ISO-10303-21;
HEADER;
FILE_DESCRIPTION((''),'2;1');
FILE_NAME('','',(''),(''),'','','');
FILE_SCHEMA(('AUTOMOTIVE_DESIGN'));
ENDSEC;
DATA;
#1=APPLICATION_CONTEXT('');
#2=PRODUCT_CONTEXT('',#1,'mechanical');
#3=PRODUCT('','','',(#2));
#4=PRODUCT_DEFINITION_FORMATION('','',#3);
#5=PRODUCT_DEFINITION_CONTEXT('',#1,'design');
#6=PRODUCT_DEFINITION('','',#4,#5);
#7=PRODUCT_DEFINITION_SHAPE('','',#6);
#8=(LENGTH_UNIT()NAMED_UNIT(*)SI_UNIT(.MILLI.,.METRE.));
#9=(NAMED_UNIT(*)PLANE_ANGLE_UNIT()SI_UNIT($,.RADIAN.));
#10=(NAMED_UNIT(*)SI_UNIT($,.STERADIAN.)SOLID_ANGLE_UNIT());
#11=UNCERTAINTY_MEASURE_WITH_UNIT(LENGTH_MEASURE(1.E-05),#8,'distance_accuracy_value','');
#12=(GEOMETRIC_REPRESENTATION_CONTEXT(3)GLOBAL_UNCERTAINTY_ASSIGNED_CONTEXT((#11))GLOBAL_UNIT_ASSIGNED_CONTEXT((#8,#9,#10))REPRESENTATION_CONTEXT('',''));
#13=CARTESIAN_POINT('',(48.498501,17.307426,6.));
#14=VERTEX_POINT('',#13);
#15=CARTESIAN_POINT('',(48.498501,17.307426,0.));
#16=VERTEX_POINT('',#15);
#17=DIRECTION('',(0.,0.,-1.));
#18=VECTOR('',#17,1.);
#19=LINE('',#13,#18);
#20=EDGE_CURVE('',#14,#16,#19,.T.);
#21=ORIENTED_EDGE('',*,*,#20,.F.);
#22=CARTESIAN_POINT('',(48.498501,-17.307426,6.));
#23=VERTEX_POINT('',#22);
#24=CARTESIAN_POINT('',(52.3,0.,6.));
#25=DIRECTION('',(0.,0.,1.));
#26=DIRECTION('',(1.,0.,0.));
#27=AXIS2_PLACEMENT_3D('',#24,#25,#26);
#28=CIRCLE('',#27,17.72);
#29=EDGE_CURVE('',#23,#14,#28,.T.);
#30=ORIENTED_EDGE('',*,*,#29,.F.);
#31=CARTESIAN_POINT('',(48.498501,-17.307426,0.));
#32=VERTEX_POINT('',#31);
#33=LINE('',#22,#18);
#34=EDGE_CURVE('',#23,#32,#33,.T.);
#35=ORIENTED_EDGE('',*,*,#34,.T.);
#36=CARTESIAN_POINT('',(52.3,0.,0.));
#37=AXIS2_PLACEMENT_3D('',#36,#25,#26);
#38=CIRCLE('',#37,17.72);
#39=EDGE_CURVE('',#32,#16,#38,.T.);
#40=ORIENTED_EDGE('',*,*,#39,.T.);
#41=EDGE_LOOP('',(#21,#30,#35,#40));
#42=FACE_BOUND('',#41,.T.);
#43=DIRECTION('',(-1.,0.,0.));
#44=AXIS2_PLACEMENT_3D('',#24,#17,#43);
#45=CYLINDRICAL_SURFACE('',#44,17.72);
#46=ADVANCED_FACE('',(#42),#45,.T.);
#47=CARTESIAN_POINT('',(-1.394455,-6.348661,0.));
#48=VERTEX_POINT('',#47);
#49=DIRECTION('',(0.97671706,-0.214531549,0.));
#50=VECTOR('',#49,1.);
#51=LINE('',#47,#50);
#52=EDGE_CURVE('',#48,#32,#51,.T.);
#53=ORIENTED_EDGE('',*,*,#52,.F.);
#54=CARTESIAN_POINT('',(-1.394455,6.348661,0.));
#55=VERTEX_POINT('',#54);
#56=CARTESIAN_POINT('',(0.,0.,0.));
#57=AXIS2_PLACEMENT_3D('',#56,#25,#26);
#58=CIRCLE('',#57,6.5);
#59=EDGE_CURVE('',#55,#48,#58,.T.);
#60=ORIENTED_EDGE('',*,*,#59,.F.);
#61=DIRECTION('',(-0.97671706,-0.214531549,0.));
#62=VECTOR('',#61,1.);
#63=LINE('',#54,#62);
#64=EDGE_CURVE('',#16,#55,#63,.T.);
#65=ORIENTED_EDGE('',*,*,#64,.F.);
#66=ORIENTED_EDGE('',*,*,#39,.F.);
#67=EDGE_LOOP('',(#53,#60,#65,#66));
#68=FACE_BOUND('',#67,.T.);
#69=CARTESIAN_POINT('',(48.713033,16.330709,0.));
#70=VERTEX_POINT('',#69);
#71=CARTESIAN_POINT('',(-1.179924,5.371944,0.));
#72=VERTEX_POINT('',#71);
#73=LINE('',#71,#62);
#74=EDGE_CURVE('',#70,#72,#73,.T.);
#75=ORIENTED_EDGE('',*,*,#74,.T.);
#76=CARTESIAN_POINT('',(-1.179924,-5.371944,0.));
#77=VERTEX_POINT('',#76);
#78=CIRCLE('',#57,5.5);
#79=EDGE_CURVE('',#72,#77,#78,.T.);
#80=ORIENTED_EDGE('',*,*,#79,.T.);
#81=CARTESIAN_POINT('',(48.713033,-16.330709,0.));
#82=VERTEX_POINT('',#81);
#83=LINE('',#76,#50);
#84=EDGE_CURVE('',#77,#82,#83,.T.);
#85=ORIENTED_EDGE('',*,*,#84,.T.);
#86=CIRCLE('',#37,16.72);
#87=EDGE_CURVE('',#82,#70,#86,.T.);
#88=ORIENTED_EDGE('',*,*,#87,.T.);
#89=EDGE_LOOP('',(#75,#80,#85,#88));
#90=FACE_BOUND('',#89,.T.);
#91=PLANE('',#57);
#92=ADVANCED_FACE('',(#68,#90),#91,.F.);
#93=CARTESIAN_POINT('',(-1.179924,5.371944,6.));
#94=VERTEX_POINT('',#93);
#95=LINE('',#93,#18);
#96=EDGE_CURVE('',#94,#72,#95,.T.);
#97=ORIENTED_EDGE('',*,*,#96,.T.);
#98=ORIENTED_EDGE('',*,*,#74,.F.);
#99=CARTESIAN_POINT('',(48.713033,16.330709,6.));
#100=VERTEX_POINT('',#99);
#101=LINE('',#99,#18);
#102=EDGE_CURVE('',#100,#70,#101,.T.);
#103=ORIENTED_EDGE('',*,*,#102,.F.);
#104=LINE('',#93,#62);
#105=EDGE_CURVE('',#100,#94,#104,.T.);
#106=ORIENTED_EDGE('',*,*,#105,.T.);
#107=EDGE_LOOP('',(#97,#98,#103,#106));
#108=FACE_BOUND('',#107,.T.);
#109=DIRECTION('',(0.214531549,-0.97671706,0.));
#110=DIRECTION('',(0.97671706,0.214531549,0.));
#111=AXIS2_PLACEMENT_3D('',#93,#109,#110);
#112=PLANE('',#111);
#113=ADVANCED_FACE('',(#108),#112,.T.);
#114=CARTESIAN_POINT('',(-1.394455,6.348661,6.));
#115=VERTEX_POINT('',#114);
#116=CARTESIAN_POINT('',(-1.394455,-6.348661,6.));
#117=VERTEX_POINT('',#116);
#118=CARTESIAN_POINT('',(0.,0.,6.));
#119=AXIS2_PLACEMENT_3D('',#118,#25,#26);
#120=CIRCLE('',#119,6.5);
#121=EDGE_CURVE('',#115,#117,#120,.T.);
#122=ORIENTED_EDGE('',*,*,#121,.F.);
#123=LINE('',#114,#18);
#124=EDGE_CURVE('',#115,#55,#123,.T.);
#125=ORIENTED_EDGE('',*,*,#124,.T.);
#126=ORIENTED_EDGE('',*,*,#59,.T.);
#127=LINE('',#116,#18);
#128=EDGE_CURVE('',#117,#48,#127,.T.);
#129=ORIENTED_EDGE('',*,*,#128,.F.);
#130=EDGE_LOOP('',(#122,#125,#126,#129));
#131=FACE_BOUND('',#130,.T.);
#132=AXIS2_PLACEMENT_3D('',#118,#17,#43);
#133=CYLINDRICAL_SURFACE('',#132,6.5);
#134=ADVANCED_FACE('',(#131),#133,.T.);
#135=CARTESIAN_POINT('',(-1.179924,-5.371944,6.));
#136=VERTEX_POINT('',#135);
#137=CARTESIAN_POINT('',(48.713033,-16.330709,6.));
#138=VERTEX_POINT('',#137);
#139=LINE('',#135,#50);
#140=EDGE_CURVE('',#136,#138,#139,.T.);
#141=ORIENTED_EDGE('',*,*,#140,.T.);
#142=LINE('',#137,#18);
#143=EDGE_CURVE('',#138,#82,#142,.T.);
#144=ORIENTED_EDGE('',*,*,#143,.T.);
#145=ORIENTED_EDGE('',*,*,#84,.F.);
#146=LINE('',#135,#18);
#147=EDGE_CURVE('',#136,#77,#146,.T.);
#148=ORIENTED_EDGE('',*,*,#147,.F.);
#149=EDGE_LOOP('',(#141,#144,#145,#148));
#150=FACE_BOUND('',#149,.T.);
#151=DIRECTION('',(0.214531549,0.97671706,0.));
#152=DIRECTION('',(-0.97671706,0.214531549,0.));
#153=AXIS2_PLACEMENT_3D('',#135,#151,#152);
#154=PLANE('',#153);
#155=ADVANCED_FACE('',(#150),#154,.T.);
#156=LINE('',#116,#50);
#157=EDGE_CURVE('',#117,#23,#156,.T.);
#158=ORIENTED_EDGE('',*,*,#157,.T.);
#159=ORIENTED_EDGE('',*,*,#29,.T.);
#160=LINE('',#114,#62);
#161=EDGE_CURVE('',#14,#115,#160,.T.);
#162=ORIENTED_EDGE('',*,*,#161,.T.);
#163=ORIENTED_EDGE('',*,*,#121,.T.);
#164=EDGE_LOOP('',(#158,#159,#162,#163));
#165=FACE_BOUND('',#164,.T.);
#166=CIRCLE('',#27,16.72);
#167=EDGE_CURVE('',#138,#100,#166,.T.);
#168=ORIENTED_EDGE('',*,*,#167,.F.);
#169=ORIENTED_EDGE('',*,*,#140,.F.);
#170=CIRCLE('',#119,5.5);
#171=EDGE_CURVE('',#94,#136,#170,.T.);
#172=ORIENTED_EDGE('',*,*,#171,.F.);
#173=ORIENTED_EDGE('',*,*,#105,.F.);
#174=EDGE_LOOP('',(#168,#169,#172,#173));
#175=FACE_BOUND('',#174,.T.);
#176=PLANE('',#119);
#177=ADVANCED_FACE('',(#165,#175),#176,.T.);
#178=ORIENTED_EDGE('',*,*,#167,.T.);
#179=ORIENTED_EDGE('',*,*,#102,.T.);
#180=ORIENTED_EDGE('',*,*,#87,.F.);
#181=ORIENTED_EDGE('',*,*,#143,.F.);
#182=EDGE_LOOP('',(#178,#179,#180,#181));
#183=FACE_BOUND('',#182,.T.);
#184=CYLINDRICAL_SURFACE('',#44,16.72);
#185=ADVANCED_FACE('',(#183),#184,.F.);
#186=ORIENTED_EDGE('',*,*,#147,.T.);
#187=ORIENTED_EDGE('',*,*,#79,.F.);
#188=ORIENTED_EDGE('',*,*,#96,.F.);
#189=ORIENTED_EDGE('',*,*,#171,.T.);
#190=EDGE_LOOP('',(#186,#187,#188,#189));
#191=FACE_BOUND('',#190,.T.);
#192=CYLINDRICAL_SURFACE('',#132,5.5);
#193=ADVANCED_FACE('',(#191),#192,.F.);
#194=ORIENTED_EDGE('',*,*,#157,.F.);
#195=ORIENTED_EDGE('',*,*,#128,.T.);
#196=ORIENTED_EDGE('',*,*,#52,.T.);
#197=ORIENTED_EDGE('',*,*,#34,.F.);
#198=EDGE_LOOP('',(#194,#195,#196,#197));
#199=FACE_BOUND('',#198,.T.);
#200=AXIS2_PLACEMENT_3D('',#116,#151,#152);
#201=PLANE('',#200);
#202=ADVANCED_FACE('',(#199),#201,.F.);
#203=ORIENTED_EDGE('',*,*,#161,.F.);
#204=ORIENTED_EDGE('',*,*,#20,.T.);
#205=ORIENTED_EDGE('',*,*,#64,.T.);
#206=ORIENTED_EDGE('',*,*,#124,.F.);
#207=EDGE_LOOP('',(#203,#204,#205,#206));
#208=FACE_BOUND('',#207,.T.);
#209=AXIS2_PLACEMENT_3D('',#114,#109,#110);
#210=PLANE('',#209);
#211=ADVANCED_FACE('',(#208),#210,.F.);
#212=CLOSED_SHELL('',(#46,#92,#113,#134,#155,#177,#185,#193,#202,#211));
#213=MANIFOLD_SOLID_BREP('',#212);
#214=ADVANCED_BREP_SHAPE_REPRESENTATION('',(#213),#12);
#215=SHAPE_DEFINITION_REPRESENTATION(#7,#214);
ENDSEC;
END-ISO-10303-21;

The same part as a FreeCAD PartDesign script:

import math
import FreeCAD as App
import Part
import Sketcher
from FreeCAD import Vector
Q = App.Units.Quantity

doc = App.newDocument("Part")
body = doc.addObject("PartDesign::Body", "Body")

# Sketch on XY plane
sketch1 = doc.addObject("Sketcher::SketchObject", "Sketch")
body.addObject(sketch1)
sketch1.AttachmentSupport = (doc.XY_Plane, [""])
sketch1.MapMode = "FlatFace"
sketch1.addGeometry(Part.LineSegment(Vector(48, 17, 0), Vector(-1, 6, 0)), False)
sketch1.addGeometry(Part.ArcOfCircle(Part.Circle(Vector(0, 0, 0), Vector(0, 0, 1), 6), math.radians(102), math.radians(258)), False)
sketch1.addGeometry(Part.LineSegment(Vector(-1, -6, 0), Vector(48, -17, 0)), False)
sketch1.addGeometry(Part.ArcOfCircle(Part.Circle(Vector(52, 0, 0), Vector(0, 0, 1), 18), math.radians(-102), math.radians(102)), False)
sketch1.addGeometry(Part.LineSegment(Vector(-1, 5, 0), Vector(49, 16, 0)), False)
sketch1.addGeometry(Part.ArcOfCircle(Part.Circle(Vector(52, 0, 0), Vector(0, 0, 1), 17), math.radians(-102), math.radians(102)), False)
sketch1.addGeometry(Part.LineSegment(Vector(49, -16, 0), Vector(-1, -5, 0)), False)
sketch1.addGeometry(Part.ArcOfCircle(Part.Circle(Vector(0, 0, 0), Vector(0, 0, 1), 6), math.radians(102), math.radians(258)), False)
sketch1.addConstraint(Sketcher.Constraint("Tangent", 0, 2, 1, 1))
sketch1.addConstraint(Sketcher.Constraint("Tangent", 1, 2, 2, 1))
sketch1.addConstraint(Sketcher.Constraint("Tangent", 2, 2, 3, 1))
sketch1.addConstraint(Sketcher.Constraint("Tangent", 3, 2, 0, 1))
sketch1.addConstraint(Sketcher.Constraint("Tangent", 4, 2, 5, 2))
sketch1.addConstraint(Sketcher.Constraint("Tangent", 5, 1, 6, 1))
sketch1.addConstraint(Sketcher.Constraint("Tangent", 6, 2, 7, 2))
sketch1.addConstraint(Sketcher.Constraint("Tangent", 7, 1, 4, 1))
sketch1.addConstraint(Sketcher.Constraint("Coincident", 1, 3, -1, 1))
sketch1.addConstraint(Sketcher.Constraint("Coincident", 7, 3, -1, 1))
sketch1.addConstraint(Sketcher.Constraint("Coincident", 5, 3, 3, 3))
sketch1.addConstraint(Sketcher.Constraint("PointOnObject", 3, 3, -1))
sketch1.addConstraint(Sketcher.Constraint("Parallel", 0, 4))
sketch1.addConstraint(Sketcher.Constraint("Radius", 1, Q("6.5 mm")))
sketch1.addConstraint(Sketcher.Constraint("Radius", 7, Q("5.5 mm")))
sketch1.addConstraint(Sketcher.Constraint("Radius", 3, Q("17.72 mm")))
sketch1.addConstraint(Sketcher.Constraint("DistanceX", -1, 1, 3, 3, Q("52.3 mm")))
pad1 = doc.addObject("PartDesign::Pad", "Pad")
body.addObject(pad1)
pad1.Profile = sketch1
pad1.Length = 6

doc.recompute()
